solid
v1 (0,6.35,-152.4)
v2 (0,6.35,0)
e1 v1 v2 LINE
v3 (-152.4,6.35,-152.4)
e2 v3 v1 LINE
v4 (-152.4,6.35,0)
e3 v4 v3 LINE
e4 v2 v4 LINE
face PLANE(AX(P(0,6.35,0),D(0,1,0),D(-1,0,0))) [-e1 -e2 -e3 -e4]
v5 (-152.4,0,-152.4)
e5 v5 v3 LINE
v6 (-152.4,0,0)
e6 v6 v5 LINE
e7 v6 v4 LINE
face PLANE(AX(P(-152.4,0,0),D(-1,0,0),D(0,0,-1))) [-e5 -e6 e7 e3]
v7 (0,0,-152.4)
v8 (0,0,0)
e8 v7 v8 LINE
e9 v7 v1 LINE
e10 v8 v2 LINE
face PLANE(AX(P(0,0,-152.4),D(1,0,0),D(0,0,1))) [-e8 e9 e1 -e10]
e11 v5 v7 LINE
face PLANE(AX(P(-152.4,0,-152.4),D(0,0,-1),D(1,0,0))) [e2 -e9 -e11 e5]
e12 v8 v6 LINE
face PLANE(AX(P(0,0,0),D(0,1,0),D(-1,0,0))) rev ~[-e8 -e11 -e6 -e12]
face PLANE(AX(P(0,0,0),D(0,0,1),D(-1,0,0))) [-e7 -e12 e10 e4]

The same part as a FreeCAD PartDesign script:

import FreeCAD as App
import Part
import Sketcher

V = App.Vector
Q = App.Units.Quantity


def add_polygon(sketch, points):
    """Adds a closed chain of lines whose ends are joined by coincident constraints."""
    first, n = sketch.GeometryCount, len(points)
    for a, b in zip(points, points[1:] + points[:1]):
        sketch.addGeometry(Part.LineSegment(App.Vector(*a, 0), App.Vector(*b, 0)), False)
    for i in range(n):
        sketch.addConstraint(Sketcher.Constraint("Coincident", first + i, 2, first + (i + 1) % n, 1))

doc = App.newDocument("Part")
params = doc.addObject("Spreadsheet::Sheet", "Params")
for row, (alias, value) in enumerate([
    ("sketch1_width", "6 in"),
    ("pad1_length", "0.25 in"),
], start=1):
    params.set(f"A{row}", alias)
    params.set(f"B{row}", "=" + value)
    params.setAlias(f"B{row}", alias)

body = doc.addObject("PartDesign::Body", "Body")

sketch1 = doc.addObject("Sketcher::SketchObject", "Sketch")
body.addObject(sketch1)
sketch1.AttachmentSupport = (doc.XZ_Plane, [""])
sketch1.MapMode = "FlatFace"
add_polygon(sketch1, [(-152.4, 0), (0, 0), (0, -152.4), (-152.4, -152.4)])
sketch1.addConstraint([
    Sketcher.Constraint("Horizontal", 0),
    Sketcher.Constraint("Vertical", 1),
    Sketcher.Constraint("Horizontal", 2),
    Sketcher.Constraint("Vertical", 3),
    Sketcher.Constraint("Coincident", 0, 2, -1, 1),
    Sketcher.Constraint("Equal", 2, 1),
    Sketcher.Constraint("DistanceX", 0, 1, 0, 2, Q("6 in")),
])
sketch1.setExpression("Constraints[10]", "Params.sketch1_width")
pad1 = doc.addObject("PartDesign::Pad", "Pad")
body.addObject(pad1)
pad1.Profile = sketch1
pad1.setExpression("Length", "Params.pad1_length")
pad1.Reversed = True

doc.recompute()
